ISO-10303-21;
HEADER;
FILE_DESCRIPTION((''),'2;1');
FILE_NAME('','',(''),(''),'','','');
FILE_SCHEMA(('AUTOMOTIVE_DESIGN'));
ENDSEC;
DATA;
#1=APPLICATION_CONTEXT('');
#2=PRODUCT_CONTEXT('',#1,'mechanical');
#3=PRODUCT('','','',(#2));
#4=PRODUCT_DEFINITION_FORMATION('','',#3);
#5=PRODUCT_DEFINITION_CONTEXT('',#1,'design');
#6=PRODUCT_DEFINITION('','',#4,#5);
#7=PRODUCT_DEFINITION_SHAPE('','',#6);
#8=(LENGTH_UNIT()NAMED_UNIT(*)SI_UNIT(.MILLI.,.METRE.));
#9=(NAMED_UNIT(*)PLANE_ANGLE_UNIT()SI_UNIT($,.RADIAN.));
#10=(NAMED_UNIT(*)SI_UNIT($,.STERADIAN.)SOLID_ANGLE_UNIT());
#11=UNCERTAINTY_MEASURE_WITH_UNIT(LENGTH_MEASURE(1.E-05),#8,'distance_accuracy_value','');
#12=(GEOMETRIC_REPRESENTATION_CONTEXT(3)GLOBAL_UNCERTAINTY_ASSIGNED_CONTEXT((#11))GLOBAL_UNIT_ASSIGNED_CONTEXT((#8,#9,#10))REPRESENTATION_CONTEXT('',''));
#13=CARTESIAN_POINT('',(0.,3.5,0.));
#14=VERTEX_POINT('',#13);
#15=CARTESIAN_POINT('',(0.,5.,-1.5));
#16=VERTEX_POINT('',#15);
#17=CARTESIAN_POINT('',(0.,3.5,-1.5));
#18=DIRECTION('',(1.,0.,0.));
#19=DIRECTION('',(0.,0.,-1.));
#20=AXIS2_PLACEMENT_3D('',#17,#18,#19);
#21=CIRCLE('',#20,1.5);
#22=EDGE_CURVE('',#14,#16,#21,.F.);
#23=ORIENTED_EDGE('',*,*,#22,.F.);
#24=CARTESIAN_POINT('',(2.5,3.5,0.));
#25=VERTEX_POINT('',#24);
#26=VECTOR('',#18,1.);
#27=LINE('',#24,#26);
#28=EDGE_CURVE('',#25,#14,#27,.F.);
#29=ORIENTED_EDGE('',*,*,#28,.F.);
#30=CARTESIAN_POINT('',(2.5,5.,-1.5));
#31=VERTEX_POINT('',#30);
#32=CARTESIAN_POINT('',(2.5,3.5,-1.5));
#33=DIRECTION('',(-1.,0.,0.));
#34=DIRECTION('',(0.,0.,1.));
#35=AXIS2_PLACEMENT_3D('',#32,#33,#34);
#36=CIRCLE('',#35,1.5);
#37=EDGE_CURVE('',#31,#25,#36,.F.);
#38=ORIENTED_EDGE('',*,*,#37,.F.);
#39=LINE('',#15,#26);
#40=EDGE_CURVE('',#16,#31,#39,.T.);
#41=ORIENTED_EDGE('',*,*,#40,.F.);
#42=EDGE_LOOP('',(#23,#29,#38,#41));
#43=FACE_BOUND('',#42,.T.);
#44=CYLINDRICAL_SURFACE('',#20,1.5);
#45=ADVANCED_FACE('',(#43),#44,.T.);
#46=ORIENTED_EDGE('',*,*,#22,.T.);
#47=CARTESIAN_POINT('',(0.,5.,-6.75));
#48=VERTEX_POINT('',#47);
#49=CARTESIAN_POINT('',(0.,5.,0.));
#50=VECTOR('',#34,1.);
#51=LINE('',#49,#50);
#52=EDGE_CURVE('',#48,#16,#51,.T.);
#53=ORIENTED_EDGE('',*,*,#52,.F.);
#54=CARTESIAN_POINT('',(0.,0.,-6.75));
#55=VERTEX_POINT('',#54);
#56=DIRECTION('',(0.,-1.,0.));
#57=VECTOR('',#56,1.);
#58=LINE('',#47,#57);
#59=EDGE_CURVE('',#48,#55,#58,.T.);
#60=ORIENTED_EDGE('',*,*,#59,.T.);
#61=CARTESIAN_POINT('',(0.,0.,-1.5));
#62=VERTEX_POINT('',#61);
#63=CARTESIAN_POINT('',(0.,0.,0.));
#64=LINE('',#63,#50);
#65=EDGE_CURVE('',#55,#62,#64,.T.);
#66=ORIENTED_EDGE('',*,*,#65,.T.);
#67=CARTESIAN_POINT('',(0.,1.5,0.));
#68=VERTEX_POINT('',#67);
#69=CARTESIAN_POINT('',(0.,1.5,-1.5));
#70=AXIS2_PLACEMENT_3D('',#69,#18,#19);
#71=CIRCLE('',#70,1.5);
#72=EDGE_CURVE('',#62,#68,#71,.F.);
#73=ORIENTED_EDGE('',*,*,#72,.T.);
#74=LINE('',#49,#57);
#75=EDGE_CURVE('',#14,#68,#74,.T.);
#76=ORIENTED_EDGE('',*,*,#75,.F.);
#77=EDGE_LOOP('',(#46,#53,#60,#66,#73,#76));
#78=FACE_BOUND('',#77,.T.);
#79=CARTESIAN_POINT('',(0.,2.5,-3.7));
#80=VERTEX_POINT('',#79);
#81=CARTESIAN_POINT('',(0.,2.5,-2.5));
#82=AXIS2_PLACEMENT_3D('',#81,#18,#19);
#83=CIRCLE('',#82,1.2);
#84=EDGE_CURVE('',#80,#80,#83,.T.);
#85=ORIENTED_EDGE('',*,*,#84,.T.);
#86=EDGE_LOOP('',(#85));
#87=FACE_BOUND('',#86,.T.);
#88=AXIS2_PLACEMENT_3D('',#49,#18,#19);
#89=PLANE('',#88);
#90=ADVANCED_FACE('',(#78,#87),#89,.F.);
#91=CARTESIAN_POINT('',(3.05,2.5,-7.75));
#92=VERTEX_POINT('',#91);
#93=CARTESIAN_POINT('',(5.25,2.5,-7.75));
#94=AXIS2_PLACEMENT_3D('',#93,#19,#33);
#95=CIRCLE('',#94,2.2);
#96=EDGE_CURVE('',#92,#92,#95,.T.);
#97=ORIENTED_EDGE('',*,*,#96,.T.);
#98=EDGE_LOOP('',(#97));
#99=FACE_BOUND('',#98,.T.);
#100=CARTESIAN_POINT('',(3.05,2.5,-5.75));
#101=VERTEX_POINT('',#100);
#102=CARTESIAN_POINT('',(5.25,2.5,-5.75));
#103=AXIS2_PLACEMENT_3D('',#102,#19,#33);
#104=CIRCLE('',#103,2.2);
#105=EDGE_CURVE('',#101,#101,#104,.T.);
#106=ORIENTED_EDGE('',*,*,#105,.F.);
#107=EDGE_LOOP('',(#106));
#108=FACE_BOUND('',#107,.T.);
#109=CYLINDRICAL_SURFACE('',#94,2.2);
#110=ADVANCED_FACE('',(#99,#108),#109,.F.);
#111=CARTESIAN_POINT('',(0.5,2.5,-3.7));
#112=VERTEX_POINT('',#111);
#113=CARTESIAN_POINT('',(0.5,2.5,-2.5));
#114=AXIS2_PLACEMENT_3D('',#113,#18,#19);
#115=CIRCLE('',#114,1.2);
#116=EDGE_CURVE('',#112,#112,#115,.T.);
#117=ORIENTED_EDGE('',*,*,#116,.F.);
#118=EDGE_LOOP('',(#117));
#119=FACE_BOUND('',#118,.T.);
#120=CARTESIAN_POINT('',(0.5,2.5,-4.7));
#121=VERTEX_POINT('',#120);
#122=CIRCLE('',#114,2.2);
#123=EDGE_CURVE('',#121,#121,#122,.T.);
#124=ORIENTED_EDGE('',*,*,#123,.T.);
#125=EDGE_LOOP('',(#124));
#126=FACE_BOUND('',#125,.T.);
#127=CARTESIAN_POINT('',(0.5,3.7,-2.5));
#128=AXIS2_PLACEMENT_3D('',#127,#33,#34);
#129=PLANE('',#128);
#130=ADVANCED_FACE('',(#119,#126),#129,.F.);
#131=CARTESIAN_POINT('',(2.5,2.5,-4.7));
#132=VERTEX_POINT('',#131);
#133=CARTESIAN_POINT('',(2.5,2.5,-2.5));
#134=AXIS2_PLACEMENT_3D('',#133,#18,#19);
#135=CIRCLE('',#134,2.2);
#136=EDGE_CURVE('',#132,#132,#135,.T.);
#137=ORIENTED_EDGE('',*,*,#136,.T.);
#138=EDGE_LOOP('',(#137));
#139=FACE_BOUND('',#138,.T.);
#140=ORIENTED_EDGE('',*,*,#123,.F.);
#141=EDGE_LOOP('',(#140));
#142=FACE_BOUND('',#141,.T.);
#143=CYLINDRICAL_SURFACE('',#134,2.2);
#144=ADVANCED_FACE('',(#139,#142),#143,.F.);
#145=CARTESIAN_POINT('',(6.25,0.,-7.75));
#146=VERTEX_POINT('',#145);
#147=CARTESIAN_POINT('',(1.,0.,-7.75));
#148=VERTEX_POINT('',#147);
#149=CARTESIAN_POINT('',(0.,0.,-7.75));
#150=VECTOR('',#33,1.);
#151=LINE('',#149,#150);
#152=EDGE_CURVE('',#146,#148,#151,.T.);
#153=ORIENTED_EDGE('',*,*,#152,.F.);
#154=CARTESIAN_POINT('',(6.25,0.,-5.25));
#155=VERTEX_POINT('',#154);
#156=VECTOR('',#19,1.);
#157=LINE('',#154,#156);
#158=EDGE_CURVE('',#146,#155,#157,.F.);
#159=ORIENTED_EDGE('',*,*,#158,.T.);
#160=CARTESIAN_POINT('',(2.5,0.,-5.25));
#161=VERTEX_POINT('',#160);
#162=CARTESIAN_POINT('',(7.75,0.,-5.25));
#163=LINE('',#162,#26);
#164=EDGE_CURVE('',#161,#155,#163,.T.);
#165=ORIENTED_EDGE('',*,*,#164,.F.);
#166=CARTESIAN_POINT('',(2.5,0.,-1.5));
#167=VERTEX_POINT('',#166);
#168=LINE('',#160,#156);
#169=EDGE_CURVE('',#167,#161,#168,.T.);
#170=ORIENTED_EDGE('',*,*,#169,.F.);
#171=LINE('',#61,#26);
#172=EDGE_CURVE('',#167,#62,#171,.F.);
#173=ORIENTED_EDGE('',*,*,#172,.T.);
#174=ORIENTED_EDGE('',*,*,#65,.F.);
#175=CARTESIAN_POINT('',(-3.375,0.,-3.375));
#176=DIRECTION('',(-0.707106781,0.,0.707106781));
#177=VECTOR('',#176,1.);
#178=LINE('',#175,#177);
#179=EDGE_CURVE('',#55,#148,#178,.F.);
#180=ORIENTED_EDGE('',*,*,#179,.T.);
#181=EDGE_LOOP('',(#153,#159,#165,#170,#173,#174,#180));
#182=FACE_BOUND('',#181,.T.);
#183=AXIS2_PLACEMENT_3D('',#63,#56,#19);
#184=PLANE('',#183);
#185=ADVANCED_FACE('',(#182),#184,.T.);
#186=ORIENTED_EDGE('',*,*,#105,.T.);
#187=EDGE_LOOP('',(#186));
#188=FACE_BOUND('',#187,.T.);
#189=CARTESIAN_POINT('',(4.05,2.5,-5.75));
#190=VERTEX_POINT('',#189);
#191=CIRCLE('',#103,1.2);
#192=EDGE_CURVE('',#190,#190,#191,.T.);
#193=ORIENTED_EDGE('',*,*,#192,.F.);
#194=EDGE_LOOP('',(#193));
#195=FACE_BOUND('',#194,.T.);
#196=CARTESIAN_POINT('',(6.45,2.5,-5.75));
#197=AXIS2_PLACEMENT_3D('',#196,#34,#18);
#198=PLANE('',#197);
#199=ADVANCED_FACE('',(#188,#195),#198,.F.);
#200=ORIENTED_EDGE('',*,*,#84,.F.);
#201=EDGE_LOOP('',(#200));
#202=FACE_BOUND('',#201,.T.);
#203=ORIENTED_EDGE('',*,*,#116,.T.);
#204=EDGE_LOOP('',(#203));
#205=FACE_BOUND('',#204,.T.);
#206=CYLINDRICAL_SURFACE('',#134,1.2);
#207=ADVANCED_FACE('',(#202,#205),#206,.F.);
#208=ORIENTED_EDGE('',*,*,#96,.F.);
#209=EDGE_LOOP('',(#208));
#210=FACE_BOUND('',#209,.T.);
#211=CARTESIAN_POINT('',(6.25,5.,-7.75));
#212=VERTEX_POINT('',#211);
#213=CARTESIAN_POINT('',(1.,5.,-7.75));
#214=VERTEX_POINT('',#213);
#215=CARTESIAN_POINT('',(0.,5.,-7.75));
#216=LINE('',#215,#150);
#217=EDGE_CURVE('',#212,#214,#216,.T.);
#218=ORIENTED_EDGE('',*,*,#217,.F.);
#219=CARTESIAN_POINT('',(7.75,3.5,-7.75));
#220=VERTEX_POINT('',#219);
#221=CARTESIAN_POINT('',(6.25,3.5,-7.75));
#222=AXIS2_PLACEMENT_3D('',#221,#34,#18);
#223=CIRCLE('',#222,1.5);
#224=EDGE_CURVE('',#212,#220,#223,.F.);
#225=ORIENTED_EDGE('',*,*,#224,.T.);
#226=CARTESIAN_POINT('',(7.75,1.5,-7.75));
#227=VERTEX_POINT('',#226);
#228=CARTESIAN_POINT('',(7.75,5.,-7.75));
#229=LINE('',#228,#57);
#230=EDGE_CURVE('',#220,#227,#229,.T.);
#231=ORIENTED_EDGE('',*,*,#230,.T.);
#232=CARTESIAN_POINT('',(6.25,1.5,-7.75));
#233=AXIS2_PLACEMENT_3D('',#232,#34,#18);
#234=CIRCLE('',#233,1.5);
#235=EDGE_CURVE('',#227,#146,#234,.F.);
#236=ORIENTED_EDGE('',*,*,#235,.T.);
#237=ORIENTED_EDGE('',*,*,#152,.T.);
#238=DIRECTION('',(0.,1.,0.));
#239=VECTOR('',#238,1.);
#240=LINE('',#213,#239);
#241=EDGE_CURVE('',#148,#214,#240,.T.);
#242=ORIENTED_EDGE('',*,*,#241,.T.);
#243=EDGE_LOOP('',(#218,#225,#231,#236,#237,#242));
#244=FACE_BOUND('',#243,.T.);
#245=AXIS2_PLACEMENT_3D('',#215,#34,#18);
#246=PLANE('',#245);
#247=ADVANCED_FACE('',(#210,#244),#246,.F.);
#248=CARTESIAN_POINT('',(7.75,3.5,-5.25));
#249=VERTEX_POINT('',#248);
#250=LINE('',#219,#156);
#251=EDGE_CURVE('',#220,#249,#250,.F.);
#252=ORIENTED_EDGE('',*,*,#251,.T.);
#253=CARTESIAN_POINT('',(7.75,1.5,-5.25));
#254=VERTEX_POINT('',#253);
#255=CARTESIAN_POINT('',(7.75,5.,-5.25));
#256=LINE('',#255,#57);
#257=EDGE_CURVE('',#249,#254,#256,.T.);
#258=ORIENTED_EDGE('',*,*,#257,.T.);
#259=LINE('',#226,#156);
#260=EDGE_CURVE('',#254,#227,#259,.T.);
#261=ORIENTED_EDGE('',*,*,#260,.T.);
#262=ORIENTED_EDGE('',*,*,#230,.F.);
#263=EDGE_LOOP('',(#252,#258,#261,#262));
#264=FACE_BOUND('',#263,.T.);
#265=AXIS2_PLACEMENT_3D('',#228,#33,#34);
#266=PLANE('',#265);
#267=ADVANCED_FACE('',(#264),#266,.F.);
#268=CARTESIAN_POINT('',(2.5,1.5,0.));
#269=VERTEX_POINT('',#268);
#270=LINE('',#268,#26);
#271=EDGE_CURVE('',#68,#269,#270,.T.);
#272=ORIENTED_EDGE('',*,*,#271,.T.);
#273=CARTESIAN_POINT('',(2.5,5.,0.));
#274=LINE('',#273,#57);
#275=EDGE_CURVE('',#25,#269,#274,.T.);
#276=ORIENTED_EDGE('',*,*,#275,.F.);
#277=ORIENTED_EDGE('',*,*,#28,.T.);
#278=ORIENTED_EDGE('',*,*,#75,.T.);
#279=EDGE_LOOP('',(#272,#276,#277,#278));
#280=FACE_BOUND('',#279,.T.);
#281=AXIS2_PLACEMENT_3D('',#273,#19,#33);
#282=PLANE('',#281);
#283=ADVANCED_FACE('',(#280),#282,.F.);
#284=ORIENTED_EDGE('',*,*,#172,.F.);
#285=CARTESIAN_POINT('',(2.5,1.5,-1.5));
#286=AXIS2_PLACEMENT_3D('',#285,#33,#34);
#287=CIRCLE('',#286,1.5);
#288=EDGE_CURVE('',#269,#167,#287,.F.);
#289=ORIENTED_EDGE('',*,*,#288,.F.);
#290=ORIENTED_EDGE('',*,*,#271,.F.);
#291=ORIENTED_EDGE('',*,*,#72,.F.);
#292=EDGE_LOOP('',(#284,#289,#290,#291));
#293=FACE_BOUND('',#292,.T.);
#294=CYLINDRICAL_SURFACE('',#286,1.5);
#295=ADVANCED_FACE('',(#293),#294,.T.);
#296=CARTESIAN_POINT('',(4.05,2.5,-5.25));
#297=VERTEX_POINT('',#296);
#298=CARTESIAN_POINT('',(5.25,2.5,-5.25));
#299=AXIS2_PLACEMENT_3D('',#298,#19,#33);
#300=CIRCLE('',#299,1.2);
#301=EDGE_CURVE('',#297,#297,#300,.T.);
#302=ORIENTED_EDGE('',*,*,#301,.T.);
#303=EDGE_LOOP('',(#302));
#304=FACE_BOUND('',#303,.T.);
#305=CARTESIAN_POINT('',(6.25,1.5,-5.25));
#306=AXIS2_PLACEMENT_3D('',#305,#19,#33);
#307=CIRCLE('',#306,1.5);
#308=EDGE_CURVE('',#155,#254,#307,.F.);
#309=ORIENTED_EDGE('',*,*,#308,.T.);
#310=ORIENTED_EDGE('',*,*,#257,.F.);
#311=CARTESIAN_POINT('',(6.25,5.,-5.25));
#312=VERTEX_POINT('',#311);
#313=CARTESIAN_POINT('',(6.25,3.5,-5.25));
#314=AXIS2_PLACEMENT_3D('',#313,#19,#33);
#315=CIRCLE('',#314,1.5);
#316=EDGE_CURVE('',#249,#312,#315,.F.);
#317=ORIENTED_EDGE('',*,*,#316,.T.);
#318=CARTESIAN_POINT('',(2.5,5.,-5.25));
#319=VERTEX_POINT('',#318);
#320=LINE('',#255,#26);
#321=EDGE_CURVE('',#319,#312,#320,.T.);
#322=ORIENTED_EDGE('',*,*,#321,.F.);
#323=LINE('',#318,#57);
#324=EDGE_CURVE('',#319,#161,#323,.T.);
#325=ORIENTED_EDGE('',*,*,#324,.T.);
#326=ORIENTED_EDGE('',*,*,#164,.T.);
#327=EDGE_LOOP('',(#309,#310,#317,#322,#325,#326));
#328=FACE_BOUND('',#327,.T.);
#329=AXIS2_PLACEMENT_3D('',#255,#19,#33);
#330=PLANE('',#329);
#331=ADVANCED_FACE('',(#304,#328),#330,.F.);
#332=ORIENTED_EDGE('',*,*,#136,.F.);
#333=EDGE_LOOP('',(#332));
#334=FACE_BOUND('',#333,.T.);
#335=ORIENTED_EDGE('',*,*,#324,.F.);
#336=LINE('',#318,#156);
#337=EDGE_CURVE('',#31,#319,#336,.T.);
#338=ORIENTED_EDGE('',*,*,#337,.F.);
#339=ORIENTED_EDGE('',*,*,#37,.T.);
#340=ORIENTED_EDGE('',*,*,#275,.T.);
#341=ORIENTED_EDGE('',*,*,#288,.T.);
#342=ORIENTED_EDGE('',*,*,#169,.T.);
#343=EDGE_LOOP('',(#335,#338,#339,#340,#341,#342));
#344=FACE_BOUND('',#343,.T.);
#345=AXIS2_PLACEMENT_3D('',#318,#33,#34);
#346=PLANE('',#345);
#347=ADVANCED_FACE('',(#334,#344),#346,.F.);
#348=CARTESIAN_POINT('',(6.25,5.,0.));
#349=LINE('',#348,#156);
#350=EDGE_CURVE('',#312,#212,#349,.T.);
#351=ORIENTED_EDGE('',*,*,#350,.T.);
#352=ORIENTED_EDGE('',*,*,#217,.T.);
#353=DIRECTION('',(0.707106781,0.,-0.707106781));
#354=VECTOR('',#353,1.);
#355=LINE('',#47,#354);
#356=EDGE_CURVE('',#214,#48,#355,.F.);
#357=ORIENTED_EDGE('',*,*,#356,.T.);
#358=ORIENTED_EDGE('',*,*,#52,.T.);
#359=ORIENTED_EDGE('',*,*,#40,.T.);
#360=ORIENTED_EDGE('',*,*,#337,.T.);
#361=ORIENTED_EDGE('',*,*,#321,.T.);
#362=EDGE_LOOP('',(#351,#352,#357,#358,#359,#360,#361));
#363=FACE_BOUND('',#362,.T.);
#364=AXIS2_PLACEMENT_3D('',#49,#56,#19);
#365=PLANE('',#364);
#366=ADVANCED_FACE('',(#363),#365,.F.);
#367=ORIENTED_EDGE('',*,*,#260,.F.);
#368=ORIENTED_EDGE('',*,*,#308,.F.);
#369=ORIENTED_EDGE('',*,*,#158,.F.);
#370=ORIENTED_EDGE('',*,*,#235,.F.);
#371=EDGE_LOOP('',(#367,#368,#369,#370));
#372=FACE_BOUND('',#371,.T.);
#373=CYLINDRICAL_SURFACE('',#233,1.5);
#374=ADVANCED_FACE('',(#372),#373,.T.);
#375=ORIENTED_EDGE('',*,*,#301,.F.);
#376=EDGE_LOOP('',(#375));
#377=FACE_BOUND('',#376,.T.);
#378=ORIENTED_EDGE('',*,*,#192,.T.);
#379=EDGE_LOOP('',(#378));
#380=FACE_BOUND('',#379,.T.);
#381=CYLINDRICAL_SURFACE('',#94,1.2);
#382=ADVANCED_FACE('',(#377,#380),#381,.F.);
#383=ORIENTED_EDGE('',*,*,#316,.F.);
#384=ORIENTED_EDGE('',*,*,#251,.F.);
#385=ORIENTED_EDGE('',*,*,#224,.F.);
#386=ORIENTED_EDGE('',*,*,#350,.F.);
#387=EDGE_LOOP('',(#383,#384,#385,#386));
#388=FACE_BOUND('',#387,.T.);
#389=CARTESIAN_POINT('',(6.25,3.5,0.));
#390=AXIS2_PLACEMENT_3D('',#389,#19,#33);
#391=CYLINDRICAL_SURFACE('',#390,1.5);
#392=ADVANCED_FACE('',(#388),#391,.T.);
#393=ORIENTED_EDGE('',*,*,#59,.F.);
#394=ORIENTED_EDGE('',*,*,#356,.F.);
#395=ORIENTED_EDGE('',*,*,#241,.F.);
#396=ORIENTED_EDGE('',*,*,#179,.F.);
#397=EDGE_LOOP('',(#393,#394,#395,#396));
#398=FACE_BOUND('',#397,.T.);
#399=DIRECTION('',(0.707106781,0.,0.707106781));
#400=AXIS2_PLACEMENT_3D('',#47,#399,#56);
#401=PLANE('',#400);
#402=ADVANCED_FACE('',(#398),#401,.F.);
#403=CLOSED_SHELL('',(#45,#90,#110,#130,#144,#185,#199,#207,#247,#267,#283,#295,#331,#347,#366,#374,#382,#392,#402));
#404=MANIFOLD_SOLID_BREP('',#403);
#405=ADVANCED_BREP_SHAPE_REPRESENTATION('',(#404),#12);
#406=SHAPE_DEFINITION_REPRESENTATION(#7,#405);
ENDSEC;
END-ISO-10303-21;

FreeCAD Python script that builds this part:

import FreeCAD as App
import Part
import Sketcher

V = App.Vector
Q = App.Units.Quantity


def edges_at(feature, points):
    """Names of the edges that pass closest to the given points."""
    edges = feature.Shape.Edges
    near = lambda p: min(range(len(edges)), key=lambda i: edges[i].distToShape(Part.Vertex(*p))[0])
    return sorted({f"Edge{near(p) + 1}" for p in points})

doc = App.newDocument("Part")
body = doc.addObject("PartDesign::Body", "Body")

# Sketch on XZ plane
sketch1 = body.newObject("Sketcher::SketchObject", "Sketch")
sketch1.AttachmentSupport = (doc.getObject("XZ_Plane"), [""])
sketch1.MapMode = "FlatFace"
sketch1.addGeometry([
    Part.LineSegment(V(0, -7.8, 0), V(0, 0, 0)),  # 0
    Part.LineSegment(V(0, 0, 0), V(2.5, 0, 0)),  # 1
    Part.LineSegment(V(2.5, 0, 0), V(2.5, -5.2, 0)),  # 2
    Part.LineSegment(V(2.5, -5.2, 0), V(7.8, -5.2, 0)),  # 3
    Part.LineSegment(V(7.8, -5.2, 0), V(7.8, -7.8, 0)),  # 4
    Part.LineSegment(V(7.8, -7.8, 0), V(0, -7.8, 0)),  # 5
], False)
sketch1.addConstraint([
    Sketcher.Constraint("Coincident", 0, 2, 1, 1),
    Sketcher.Constraint("Coincident", 1, 2, 2, 1),
    Sketcher.Constraint("Coincident", 2, 2, 3, 1),
    Sketcher.Constraint("Coincident", 3, 2, 4, 1),
    Sketcher.Constraint("Coincident", 4, 2, 5, 1),
    Sketcher.Constraint("Coincident", 5, 2, 0, 1),
    Sketcher.Constraint("Vertical", 0),
    Sketcher.Constraint("Horizontal", 1),
    Sketcher.Constraint("Vertical", 2),
    Sketcher.Constraint("Horizontal", 3),
    Sketcher.Constraint("Vertical", 4),
    Sketcher.Constraint("Horizontal", 5),
    Sketcher.Constraint("Coincident", 0, 2, -1, 1),
    Sketcher.Constraint("Equal", 5, 0),
    Sketcher.Constraint("Equal", 3, 2),
    Sketcher.Constraint("DistanceX", 1, 1, 1, 2, Q("2.5 mm")),
    Sketcher.Constraint("DistanceX", 3, 1, 3, 2, Q("5.25 mm")),
])
pad1 = body.newObject("PartDesign::Pad", "Pad")
pad1.Profile = sketch1
pad1.Length = 5
pad1.Reversed = True
doc.recompute()

chamfer = body.newObject("PartDesign::Chamfer", "Chamfer")
chamfer.Base = (pad1, edges_at(pad1, [(0, 2.5, -7.75)]))
chamfer.Size = 1

# Sketch on XY plane
sketch2 = body.newObject("Sketcher::SketchObject", "Sketch001")
sketch2.AttachmentSupport = (doc.getObject("XY_Plane"), [""])
sketch2.MapMode = "FlatFace"
sketch2.AttachmentOffset = App.Placement(V(0, 0, -7.75), App.Rotation())
sketch2.addGeometry(Part.Circle(V(5.2, 2.5, 0), V(0, 0, 1), 1.2), False)
sketch2.addConstraint([
    Sketcher.Constraint("Diameter", 0, Q("2.4 mm")),
    Sketcher.Constraint("DistanceY", -1, 1, 0, 3, Q("2.5 mm")),
    Sketcher.Constraint("DistanceX", -1, 1, 0, 3, Q("5.25 mm")),
])
doc.recompute()
hole = body.newObject("PartDesign::Hole", "Hole")
hole.Profile = sketch2
hole.ThreadType = "None"
hole.Diameter = 2.4
hole.DepthType = "ThroughAll"
hole.HoleCutType = "Counterbore"
hole.HoleCutDiameter = 4.4
hole.HoleCutDepth = 2
hole.Reversed = True
doc.recompute()

fillet = body.newObject("PartDesign::Fillet", "Fillet")
fillet.Base = (hole, edges_at(hole, [
    (7.75, 5, -6.5),
    (1.25, 5, 0),
    (7.75, 0, -6.5),
    (1.25, 0, 0),
]))
fillet.Radius = 1.5

# Sketch on YZ plane
sketch3 = body.newObject("Sketcher::SketchObject", "Sketch002")
sketch3.AttachmentSupport = (doc.getObject("YZ_Plane"), [""])
sketch3.MapMode = "FlatFace"
sketch3.AttachmentOffset = App.Placement(V(0, 0, 2.5), App.Rotation())
sketch3.addGeometry(Part.Circle(V(2.5, -2.5, 0), V(0, 0, 1), 1.2), False)
sketch3.addConstraint([
    Sketcher.Constraint("Diameter", 0, Q("2.4 mm")),
    Sketcher.Constraint("DistanceX", -1, 1, 0, 3, Q("2.5 mm")),
    Sketcher.Constraint("DistanceY", 0, 3, -1, 1, Q("2.5 mm")),
])
doc.recompute()
hole2 = body.newObject("PartDesign::Hole", "Hole001")
hole2.Profile = sketch3
hole2.ThreadType = "None"
hole2.Diameter = 2.4
hole2.DepthType = "ThroughAll"
hole2.HoleCutType = "Counterbore"
hole2.HoleCutDiameter = 4.4
hole2.HoleCutDepth = 2

doc.recompute()
